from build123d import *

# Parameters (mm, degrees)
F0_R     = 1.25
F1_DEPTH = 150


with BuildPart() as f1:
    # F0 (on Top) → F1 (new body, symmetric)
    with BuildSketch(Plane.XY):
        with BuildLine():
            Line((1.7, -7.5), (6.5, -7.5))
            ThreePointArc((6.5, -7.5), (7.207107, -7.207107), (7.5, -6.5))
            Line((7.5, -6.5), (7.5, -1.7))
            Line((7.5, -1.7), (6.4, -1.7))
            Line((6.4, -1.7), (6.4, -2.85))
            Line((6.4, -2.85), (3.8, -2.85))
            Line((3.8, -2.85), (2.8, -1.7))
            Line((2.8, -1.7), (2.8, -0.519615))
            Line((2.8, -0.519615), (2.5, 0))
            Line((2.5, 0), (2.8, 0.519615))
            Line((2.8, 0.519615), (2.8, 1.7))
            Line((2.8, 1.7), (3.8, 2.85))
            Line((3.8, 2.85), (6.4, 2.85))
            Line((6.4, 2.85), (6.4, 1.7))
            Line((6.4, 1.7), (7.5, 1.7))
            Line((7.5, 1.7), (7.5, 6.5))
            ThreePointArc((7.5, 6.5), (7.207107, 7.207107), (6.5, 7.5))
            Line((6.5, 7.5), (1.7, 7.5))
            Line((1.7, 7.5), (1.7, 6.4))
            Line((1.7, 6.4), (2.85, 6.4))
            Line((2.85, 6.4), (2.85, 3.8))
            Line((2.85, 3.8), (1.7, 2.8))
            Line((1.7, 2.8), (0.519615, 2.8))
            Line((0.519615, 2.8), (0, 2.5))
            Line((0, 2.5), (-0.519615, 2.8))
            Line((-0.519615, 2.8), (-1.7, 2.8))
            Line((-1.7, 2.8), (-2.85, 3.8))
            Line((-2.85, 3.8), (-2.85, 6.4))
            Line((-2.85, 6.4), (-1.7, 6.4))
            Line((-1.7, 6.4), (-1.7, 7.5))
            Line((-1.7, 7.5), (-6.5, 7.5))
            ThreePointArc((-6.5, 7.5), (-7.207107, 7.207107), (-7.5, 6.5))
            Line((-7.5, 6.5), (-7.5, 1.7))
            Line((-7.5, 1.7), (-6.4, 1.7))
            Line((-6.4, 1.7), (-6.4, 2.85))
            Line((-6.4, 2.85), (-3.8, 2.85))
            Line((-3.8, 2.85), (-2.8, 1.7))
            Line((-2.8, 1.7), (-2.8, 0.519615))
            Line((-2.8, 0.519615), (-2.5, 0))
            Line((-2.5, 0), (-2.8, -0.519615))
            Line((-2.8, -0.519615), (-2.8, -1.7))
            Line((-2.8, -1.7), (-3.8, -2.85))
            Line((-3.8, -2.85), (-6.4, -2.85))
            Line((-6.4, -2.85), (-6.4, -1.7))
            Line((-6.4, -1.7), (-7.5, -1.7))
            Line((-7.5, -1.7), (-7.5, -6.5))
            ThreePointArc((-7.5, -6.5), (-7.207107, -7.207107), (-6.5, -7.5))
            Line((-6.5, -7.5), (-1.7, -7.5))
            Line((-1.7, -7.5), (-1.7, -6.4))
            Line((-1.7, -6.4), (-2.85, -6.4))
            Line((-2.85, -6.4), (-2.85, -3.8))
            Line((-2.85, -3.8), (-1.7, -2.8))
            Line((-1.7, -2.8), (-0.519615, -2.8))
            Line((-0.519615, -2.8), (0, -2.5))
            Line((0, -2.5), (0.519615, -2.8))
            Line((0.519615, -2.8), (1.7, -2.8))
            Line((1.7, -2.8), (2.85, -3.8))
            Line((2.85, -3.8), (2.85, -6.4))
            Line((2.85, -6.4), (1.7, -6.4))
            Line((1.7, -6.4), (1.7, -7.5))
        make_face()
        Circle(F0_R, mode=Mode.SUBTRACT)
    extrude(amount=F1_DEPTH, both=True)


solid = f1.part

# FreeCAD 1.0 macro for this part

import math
import FreeCAD as App
import Part
import Sketcher

V = App.Vector
Q = App.Units.Quantity

doc = App.newDocument("Part")
body = doc.addObject("PartDesign::Body", "Body")

# Sketch on XY plane
sketch1 = body.newObject("Sketcher::SketchObject", "Sketch")
sketch1.AttachmentSupport = (doc.getObject("XY_Plane"), [""])
sketch1.MapMode = "FlatFace"
sketch1.addGeometry(Part.LineSegment(V(1.7, -7.5, 0), V(6.5, -7.5, 0)), False)
sketch1.addGeometry(Part.ArcOfCircle(Part.Circle(V(6.5, -6.5, 0), V(0, 0, 1), 1), math.radians(-90), math.radians(0)), False)
sketch1.addGeometry(Part.LineSegment(V(7.5, -6.5, 0), V(7.5, -1.7, 0)), False)
sketch1.addGeometry(Part.LineSegment(V(7.5, -1.7, 0), V(6.4, -1.7, 0)), False)
sketch1.addGeometry(Part.LineSegment(V(6.4, -1.7, 0), V(6.4, -2.9, 0)), False)
sketch1.addGeometry(Part.LineSegment(V(6.4, -2.9, 0), V(3.8, -2.9, 0)), False)
sketch1.addGeometry(Part.LineSegment(V(3.8, -2.9, 0), V(2.8, -1.7, 0)), False)
sketch1.addGeometry(Part.LineSegment(V(2.8, -1.7, 0), V(2.8, -0.5, 0)), False)
sketch1.addGeometry(Part.LineSegment(V(2.8, -0.5, 0), V(2.5, 0, 0)), False)
sketch1.addGeometry(Part.LineSegment(V(2.5, 0, 0), V(2.8, 0.5, 0)), False)
sketch1.addGeometry(Part.LineSegment(V(2.8, 0.5, 0), V(2.8, 1.7, 0)), False)
sketch1.addGeometry(Part.LineSegment(V(2.8, 1.7, 0), V(3.8, 2.9, 0)), False)
sketch1.addGeometry(Part.LineSegment(V(3.8, 2.9, 0), V(6.4, 2.9, 0)), False)
sketch1.addGeometry(Part.LineSegment(V(6.4, 2.9, 0), V(6.4, 1.7, 0)), False)
sketch1.addGeometry(Part.LineSegment(V(6.4, 1.7, 0), V(7.5, 1.7, 0)), False)
sketch1.addGeometry(Part.LineSegment(V(7.5, 1.7, 0), V(7.5, 6.5, 0)), False)
sketch1.addGeometry(Part.ArcOfCircle(Part.Circle(V(6.5, 6.5, 0), V(0, 0, 1), 1), math.radians(0), math.radians(90)), False)
sketch1.addGeometry(Part.LineSegment(V(6.5, 7.5, 0), V(1.7, 7.5, 0)), False)
sketch1.addGeometry(Part.LineSegment(V(1.7, 7.5, 0), V(1.7, 6.4, 0)), False)
sketch1.addGeometry(Part.LineSegment(V(1.7, 6.4, 0), V(2.9, 6.4, 0)), False)
sketch1.addGeometry(Part.LineSegment(V(2.9, 6.4, 0), V(2.9, 3.8, 0)), False)
sketch1.addGeometry(Part.LineSegment(V(2.9, 3.8, 0), V(1.7, 2.8, 0)), False)
sketch1.addGeometry(Part.LineSegment(V(1.7, 2.8, 0), V(0.5, 2.8, 0)), False)
sketch1.addGeometry(Part.LineSegment(V(0.5, 2.8, 0), V(0, 2.5, 0)), False)
sketch1.addGeometry(Part.LineSegment(V(0, 2.5, 0), V(-0.5, 2.8, 0)), False)
sketch1.addGeometry(Part.LineSegment(V(-0.5, 2.8, 0), V(-1.7, 2.8, 0)), False)
sketch1.addGeometry(Part.LineSegment(V(-1.7, 2.8, 0), V(-2.9, 3.8, 0)), False)
sketch1.addGeometry(Part.LineSegment(V(-2.9, 3.8, 0), V(-2.9, 6.4, 0)), False)
sketch1.addGeometry(Part.LineSegment(V(-2.9, 6.4, 0), V(-1.7, 6.4, 0)), False)
sketch1.addGeometry(Part.LineSegment(V(-1.7, 6.4, 0), V(-1.7, 7.5, 0)), False)
sketch1.addGeometry(Part.LineSegment(V(-1.7, 7.5, 0), V(-6.5, 7.5, 0)), False)
sketch1.addGeometry(Part.ArcOfCircle(Part.Circle(V(-6.5, 6.5, 0), V(0, 0, 1), 1), math.radians(90), math.radians(180)), False)
sketch1.addGeometry(Part.LineSegment(V(-7.5, 6.5, 0), V(-7.5, 1.7, 0)), False)
sketch1.addGeometry(Part.LineSegment(V(-7.5, 1.7, 0), V(-6.4, 1.7, 0)), False)
sketch1.addGeometry(Part.LineSegment(V(-6.4, 1.7, 0), V(-6.4, 2.9, 0)), False)
sketch1.addGeometry(Part.LineSegment(V(-6.4, 2.9, 0), V(-3.8, 2.9, 0)), False)
sketch1.addGeometry(Part.LineSegment(V(-3.8, 2.9, 0), V(-2.8, 1.7, 0)), False)
sketch1.addGeometry(Part.LineSegment(V(-2.8, 1.7, 0), V(-2.8, 0.5, 0)), False)
sketch1.addGeometry(Part.LineSegment(V(-2.8, 0.5, 0), V(-2.5, 0, 0)), False)
sketch1.addGeometry(Part.LineSegment(V(-2.5, 0, 0), V(-2.8, -0.5, 0)), False)
sketch1.addGeometry(Part.LineSegment(V(-2.8, -0.5, 0), V(-2.8, -1.7, 0)), False)
sketch1.addGeometry(Part.LineSegment(V(-2.8, -1.7, 0), V(-3.8, -2.9, 0)), False)
sketch1.addGeometry(Part.LineSegment(V(-3.8, -2.9, 0), V(-6.4, -2.9, 0)), False)
sketch1.addGeometry(Part.LineSegment(V(-6.4, -2.9, 0), V(-6.4, -1.7, 0)), False)
sketch1.addGeometry(Part.LineSegment(V(-6.4, -1.7, 0), V(-7.5, -1.7, 0)), False)
sketch1.addGeometry(Part.LineSegment(V(-7.5, -1.7, 0), V(-7.5, -6.5, 0)), False)
sketch1.addGeometry(Part.ArcOfCircle(Part.Circle(V(-6.5, -6.5, 0), V(0, 0, 1), 1), math.radians(180), math.radians(270)), False)
sketch1.addGeometry(Part.LineSegment(V(-6.5, -7.5, 0), V(-1.7, -7.5, 0)), False)
sketch1.addGeometry(Part.LineSegment(V(-1.7, -7.5, 0), V(-1.7, -6.4, 0)), False)
sketch1.addGeometry(Part.LineSegment(V(-1.7, -6.4, 0), V(-2.9, -6.4, 0)), False)
sketch1.addGeometry(Part.LineSegment(V(-2.9, -6.4, 0), V(-2.9, -3.8, 0)), False)
sketch1.addGeometry(Part.LineSegment(V(-2.9, -3.8, 0), V(-1.7, -2.8, 0)), False)
sketch1.addGeometry(Part.LineSegment(V(-1.7, -2.8, 0), V(-0.5, -2.8, 0)), False)
sketch1.addGeometry(Part.LineSegment(V(-0.5, -2.8, 0), V(0, -2.5, 0)), False)
sketch1.addGeometry(Part.LineSegment(V(0, -2.5, 0), V(0.5, -2.8, 0)), False)
sketch1.addGeometry(Part.LineSegment(V(0.5, -2.8, 0), V(1.7, -2.8, 0)), False)
sketch1.addGeometry(Part.LineSegment(V(1.7, -2.8, 0), V(2.9, -3.8, 0)), False)
sketch1.addGeometry(Part.LineSegment(V(2.9, -3.8, 0), V(2.9, -6.4, 0)), False)
sketch1.addGeometry(Part.LineSegment(V(2.9, -6.4, 0), V(1.7, -6.4, 0)), False)
sketch1.addGeometry(Part.LineSegment(V(1.7, -6.4, 0), V(1.7, -7.5, 0)), False)
sketch1.addGeometry(Part.Circle(V(0, 0, 0), V(0, 0, 1), 1.2), False)
sketch1.addConstraint(Sketcher.Constraint("Tangent", 0, 2, 1, 1))
sketch1.addConstraint(Sketcher.Constraint("Tangent", 1, 2, 2, 1))
sketch1.addConstraint(Sketcher.Constraint("Coincident", 2, 2, 3, 1))
sketch1.addConstraint(Sketcher.Constraint("Coincident", 3, 2, 4, 1))
sketch1.addConstraint(Sketcher.Constraint("Coincident", 4, 2, 5, 1))
sketch1.addConstraint(Sketcher.Constraint("Coincident", 5, 2, 6, 1))
sketch1.addConstraint(Sketcher.Constraint("Coincident", 6, 2, 7, 1))
sketch1.addConstraint(Sketcher.Constraint("Coincident", 7, 2, 8, 1))
sketch1.addConstraint(Sketcher.Constraint("Coincident", 8, 2, 9, 1))
sketch1.addConstraint(Sketcher.Constraint("Coincident", 9, 2, 10, 1))
sketch1.addConstraint(Sketcher.Constraint("Coincident", 10, 2, 11, 1))
sketch1.addConstraint(Sketcher.Constraint("Coincident", 11, 2, 12, 1))
sketch1.addConstraint(Sketcher.Constraint("Coincident", 12, 2, 13, 1))
sketch1.addConstraint(Sketcher.Constraint("Coincident", 13, 2, 14, 1))
sketch1.addConstraint(Sketcher.Constraint("Coincident", 14, 2, 15, 1))
sketch1.addConstraint(Sketcher.Constraint("Tangent", 15, 2, 16, 1))
sketch1.addConstraint(Sketcher.Constraint("Tangent", 16, 2, 17, 1))
sketch1.addConstraint(Sketcher.Constraint("Coincident", 17, 2, 18, 1))
sketch1.addConstraint(Sketcher.Constraint("Coincident", 18, 2, 19, 1))
sketch1.addConstraint(Sketcher.Constraint("Coincident", 19, 2, 20, 1))
sketch1.addConstraint(Sketcher.Constraint("Coincident", 20, 2, 21, 1))
sketch1.addConstraint(Sketcher.Constraint("Coincident", 21, 2, 22, 1))
sketch1.addConstraint(Sketcher.Constraint("Coincident", 22, 2, 23, 1))
sketch1.addConstraint(Sketcher.Constraint("Coincident", 23, 2, 24, 1))
sketch1.addConstraint(Sketcher.Constraint("Coincident", 24, 2, 25, 1))
sketch1.addConstraint(Sketcher.Constraint("Coincident", 25, 2, 26, 1))
sketch1.addConstraint(Sketcher.Constraint("Coincident", 26, 2, 27, 1))
sketch1.addConstraint(Sketcher.Constraint("Coincident", 27, 2, 28, 1))
sketch1.addConstraint(Sketcher.Constraint("Coincident", 28, 2, 29, 1))
sketch1.addConstraint(Sketcher.Constraint("Coincident", 29, 2, 30, 1))
sketch1.addConstraint(Sketcher.Constraint("Tangent", 30, 2, 31, 1))
sketch1.addConstraint(Sketcher.Constraint("Tangent", 31, 2, 32, 1))
sketch1.addConstraint(Sketcher.Constraint("Coincident", 32, 2, 33, 1))
sketch1.addConstraint(Sketcher.Constraint("Coincident", 33, 2, 34, 1))
sketch1.addConstraint(Sketcher.Constraint("Coincident", 34, 2, 35, 1))
sketch1.addConstraint(Sketcher.Constraint("Coincident", 35, 2, 36, 1))
sketch1.addConstraint(Sketcher.Constraint("Coincident", 36, 2, 37, 1))
sketch1.addConstraint(Sketcher.Constraint("Coincident", 37, 2, 38, 1))
sketch1.addConstraint(Sketcher.Constraint("Coincident", 38, 2, 39, 1))
sketch1.addConstraint(Sketcher.Constraint("Coincident", 39, 2, 40, 1))
sketch1.addConstraint(Sketcher.Constraint("Coincident", 40, 2, 41, 1))
sketch1.addConstraint(Sketcher.Constraint("Coincident", 41, 2, 42, 1))
sketch1.addConstraint(Sketcher.Constraint("Coincident", 42, 2, 43, 1))
sketch1.addConstraint(Sketcher.Constraint("Coincident", 43, 2, 44, 1))
sketch1.addConstraint(Sketcher.Constraint("Coincident", 44, 2, 45, 1))
sketch1.addConstraint(Sketcher.Constraint("Tangent", 45, 2, 46, 1))
sketch1.addConstraint(Sketcher.Constraint("Tangent", 46, 2, 47, 1))
sketch1.addConstraint(Sketcher.Constraint("Coincident", 47, 2, 48, 1))
sketch1.addConstraint(Sketcher.Constraint("Coincident", 48, 2, 49, 1))
sketch1.addConstraint(Sketcher.Constraint("Coincident", 49, 2, 50, 1))
sketch1.addConstraint(Sketcher.Constraint("Coincident", 50, 2, 51, 1))
sketch1.addConstraint(Sketcher.Constraint("Coincident", 51, 2, 52, 1))
sketch1.addConstraint(Sketcher.Constraint("Coincident", 52, 2, 53, 1))
sketch1.addConstraint(Sketcher.Constraint("Coincident", 53, 2, 54, 1))
sketch1.addConstraint(Sketcher.Constraint("Coincident", 54, 2, 55, 1))
sketch1.addConstraint(Sketcher.Constraint("Coincident", 55, 2, 56, 1))
sketch1.addConstraint(Sketcher.Constraint("Coincident", 56, 2, 57, 1))
sketch1.addConstraint(Sketcher.Constraint("Coincident", 57, 2, 58, 1))
sketch1.addConstraint(Sketcher.Constraint("Coincident", 58, 2, 59, 1))
sketch1.addConstraint(Sketcher.Constraint("Coincident", 59, 2, 0, 1))
sketch1.addConstraint(Sketcher.Constraint("Horizontal", 0))
sketch1.addConstraint(Sketcher.Constraint("Vertical", 2))
sketch1.addConstraint(Sketcher.Constraint("Horizontal", 3))
sketch1.addConstraint(Sketcher.Constraint("Vertical", 4))
sketch1.addConstraint(Sketcher.Constraint("Horizontal", 5))
sketch1.addConstraint(Sketcher.Constraint("Vertical", 7))
sketch1.addConstraint(Sketcher.Constraint("Vertical", 10))
sketch1.addConstraint(Sketcher.Constraint("Horizontal", 12))
sketch1.addConstraint(Sketcher.Constraint("Vertical", 13))
sketch1.addConstraint(Sketcher.Constraint("Horizontal", 14))
sketch1.addConstraint(Sketcher.Constraint("Vertical", 15))
sketch1.addConstraint(Sketcher.Constraint("Horizontal", 17))
sketch1.addConstraint(Sketcher.Constraint("Vertical", 18))
sketch1.addConstraint(Sketcher.Constraint("Horizontal", 19))
sketch1.addConstraint(Sketcher.Constraint("Vertical", 20))
sketch1.addConstraint(Sketcher.Constraint("Horizontal", 22))
sketch1.addConstraint(Sketcher.Constraint("Horizontal", 25))
sketch1.addConstraint(Sketcher.Constraint("Vertical", 27))
sketch1.addConstraint(Sketcher.Constraint("Horizontal", 28))
sketch1.addConstraint(Sketcher.Constraint("Vertical", 29))
sketch1.addConstraint(Sketcher.Constraint("Horizontal", 30))
sketch1.addConstraint(Sketcher.Constraint("Vertical", 32))
sketch1.addConstraint(Sketcher.Constraint("Horizontal", 33))
sketch1.addConstraint(Sketcher.Constraint("Vertical", 34))
sketch1.addConstraint(Sketcher.Constraint("Horizontal", 35))
sketch1.addConstraint(Sketcher.Constraint("Vertical", 37))
sketch1.addConstraint(Sketcher.Constraint("Vertical", 40))
sketch1.addConstraint(Sketcher.Constraint("Horizontal", 42))
sketch1.addConstraint(Sketcher.Constraint("Vertical", 43))
sketch1.addConstraint(Sketcher.Constraint("Horizontal", 44))
sketch1.addConstraint(Sketcher.Constraint("Vertical", 45))
sketch1.addConstraint(Sketcher.Constraint("Horizontal", 47))
sketch1.addConstraint(Sketcher.Constraint("Vertical", 48))
sketch1.addConstraint(Sketcher.Constraint("Horizontal", 49))
sketch1.addConstraint(Sketcher.Constraint("Vertical", 50))
sketch1.addConstraint(Sketcher.Constraint("Horizontal", 52))
sketch1.addConstraint(Sketcher.Constraint("Horizontal", 55))
sketch1.addConstraint(Sketcher.Constraint("Vertical", 57))
sketch1.addConstraint(Sketcher.Constraint("Horizontal", 58))
sketch1.addConstraint(Sketcher.Constraint("Vertical", 59))
sketch1.addConstraint(Sketcher.Constraint("Coincident", 60, 3, -1, 1))
sketch1.addConstraint(Sketcher.Constraint("Equal", 1, 16))
sketch1.addConstraint(Sketcher.Constraint("Equal", 16, 31))
sketch1.addConstraint(Sketcher.Constraint("Equal", 31, 46))
sketch1.addConstraint(Sketcher.Constraint("Symmetric", 1, 3, 31, 3, -1, 1))
sketch1.addConstraint(Sketcher.Constraint("Symmetric", 16, 3, 46, 3, -1, 1))
sketch1.addConstraint(Sketcher.Constraint("Symmetric", 3, 2, 33, 2, -1, 1))
sketch1.addConstraint(Sketcher.Constraint("Symmetric", 5, 2, 35, 2, -1, 1))
sketch1.addConstraint(Sketcher.Constraint("Symmetric", 6, 2, 36, 2, -1, 1))
sketch1.addConstraint(Sketcher.Constraint("Symmetric", 8, 2, 38, 2, -1, 1))
sketch1.addConstraint(Sketcher.Constraint("Symmetric", 9, 2, 39, 2, -1, 1))
sketch1.addConstraint(Sketcher.Constraint("Symmetric", 11, 2, 41, 2, -1, 1))
sketch1.addConstraint(Sketcher.Constraint("Symmetric", 13, 2, 43, 2, -1, 1))
sketch1.addConstraint(Sketcher.Constraint("Symmetric", 18, 2, 48, 2, -1, 1))
sketch1.addConstraint(Sketcher.Constraint("Symmetric", 20, 2, 50, 2, -1, 1))
sketch1.addConstraint(Sketcher.Constraint("Symmetric", 21, 2, 51, 2, -1, 1))
sketch1.addConstraint(Sketcher.Constraint("Symmetric", 23, 2, 53, 2, -1, 1))
sketch1.addConstraint(Sketcher.Constraint("Symmetric", 24, 2, 54, 2, -1, 1))
sketch1.addConstraint(Sketcher.Constraint("Symmetric", 26, 2, 56, 2, -1, 1))
sketch1.addConstraint(Sketcher.Constraint("Symmetric", 28, 2, 58, 2, -1, 1))
sketch1.addConstraint(Sketcher.Constraint("Symmetric", 16, 3, 31, 3, -2))
sketch1.addConstraint(Sketcher.Constraint("Symmetric", 22, 2, 24, 2, -2))
sketch1.addConstraint(Sketcher.Constraint("Symmetric", 20, 2, 26, 2, -2))
sketch1.addConstraint(Sketcher.Constraint("Symmetric", 18, 2, 28, 2, -2))
sketch1.addConstraint(Sketcher.Constraint("Symmetric", 13, 2, 33, 2, -2))
sketch1.addConstraint(Sketcher.Constraint("Symmetric", 11, 2, 35, 2, -2))
sketch1.addConstraint(Sketcher.Constraint("Symmetric", 10, 2, 36, 2, -2))
sketch1.addConstraint(Sketcher.Constraint("PointOnObject", 8, 2, -1))
sketch1.addConstraint(Sketcher.Constraint("PointOnObject", 23, 2, -2))
sketch1.addConstraint(Sketcher.Constraint("Perpendicular", 6, 21))
sketch1.addConstraint(Sketcher.Constraint("Perpendicular", 8, 23))
sketch1.addConstraint(Sketcher.Constraint("Perpendicular", 9, 24))
sketch1.addConstraint(Sketcher.Constraint("Perpendicular", 11, 26))
sketch1.addConstraint(Sketcher.Constraint("Perpendicular", 23, 38))
sketch1.addConstraint(Sketcher.Constraint("Perpendicular", 26, 41))
sketch1.addConstraint(Sketcher.Constraint("Perpendicular", 38, 53))
sketch1.addConstraint(Sketcher.Constraint("Perpendicular", 41, 56))
sketch1.addConstraint(Sketcher.Constraint("Horizontal", 3, 2, 6, 2))
sketch1.addConstraint(Sketcher.Constraint("Vertical", 18, 2, 21, 2))
sketch1.addConstraint(Sketcher.Constraint("Equal", 47, 2))
sketch1.addConstraint(Sketcher.Constraint("Equal", 58, 4))
sketch1.addConstraint(Sketcher.Constraint("Equal", 55, 7))
sketch1.addConstraint(Sketcher.Constraint("Equal", 44, 18))
sketch1.addConstraint(Sketcher.Constraint("Equal", 42, 20))
sketch1.addConstraint(Sketcher.Constraint("Equal", 9, 23))
sketch1.addConstraint(Sketcher.Constraint("Radius", 1, Q("0.999999 mm")))
sketch1.addConstraint(Sketcher.Constraint("Diameter", 60, Q("2.5 mm")))
sketch1.addConstraint(Sketcher.Constraint("Angle", 8, Q("120.000012 deg")))
sketch1.addConstraint(Sketcher.Constraint("DistanceX", 0, 1, 0, 2, Q("4.8 mm")))
sketch1.addConstraint(Sketcher.Constraint("DistanceX", 3, 2, 3, 1, Q("1.1 mm")))
sketch1.addConstraint(Sketcher.Constraint("DistanceX", 5, 2, 5, 1, Q("2.6 mm")))
sketch1.addConstraint(Sketcher.Constraint("Distance", 8, Q("0.6 mm")))
sketch1.addConstraint(Sketcher.Constraint("DistanceX", 19, 1, 19, 2, Q("1.15 mm")))
sketch1.addConstraint(Sketcher.Constraint("DistanceX", -1, 1, 1, 3, Q("6.500001 mm")))
sketch1.addConstraint(Sketcher.Constraint("DistanceX", -1, 1, 6, 2, Q("2.8 mm")))
pad1 = body.newObject("PartDesign::Pad", "Pad")
pad1.Profile = sketch1
pad1.Length = 300
pad1.Midplane = True

doc.recompute()
